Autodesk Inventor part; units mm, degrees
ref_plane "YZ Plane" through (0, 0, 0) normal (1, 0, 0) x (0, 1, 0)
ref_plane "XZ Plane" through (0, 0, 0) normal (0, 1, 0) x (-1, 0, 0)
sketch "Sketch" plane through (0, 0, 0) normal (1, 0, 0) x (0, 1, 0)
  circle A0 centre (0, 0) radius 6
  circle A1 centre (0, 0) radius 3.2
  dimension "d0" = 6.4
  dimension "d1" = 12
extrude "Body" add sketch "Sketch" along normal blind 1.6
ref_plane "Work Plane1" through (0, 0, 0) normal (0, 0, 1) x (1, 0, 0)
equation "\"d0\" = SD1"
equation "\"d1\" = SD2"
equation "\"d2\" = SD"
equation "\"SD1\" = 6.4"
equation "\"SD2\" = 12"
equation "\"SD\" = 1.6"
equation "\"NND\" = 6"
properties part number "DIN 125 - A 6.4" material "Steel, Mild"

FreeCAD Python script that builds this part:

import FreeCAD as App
import Part
import Sketcher

V = App.Vector

doc = App.newDocument("Part")
body = doc.addObject("PartDesign::Body", "Body")

# Sketch on YZ plane
sketch1 = body.newObject("Sketcher::SketchObject", "Sketch")
sketch1.AttachmentSupport = (doc.getObject("YZ_Plane"), [""])
sketch1.MapMode = "FlatFace"
sketch1.addGeometry([
    Part.Circle(V(0, 0, 0), V(0, 0, 1), 6),
    Part.Circle(V(0, 0, 0), V(0, 0, 1), 3.2),
], False)
sketch1.addConstraint([
    Sketcher.Constraint("Coincident", 0, 3, -1, 1),
    Sketcher.Constraint("Coincident", 1, 3, -1, 1),
    Sketcher.Constraint("Diameter", 0, 12.0),
    Sketcher.Constraint("Diameter", 1, 6.4),
])
pad1 = body.newObject("PartDesign::Pad", "Pad")
pad1.Profile = sketch1
pad1.Length = 1.6

doc.recompute()
